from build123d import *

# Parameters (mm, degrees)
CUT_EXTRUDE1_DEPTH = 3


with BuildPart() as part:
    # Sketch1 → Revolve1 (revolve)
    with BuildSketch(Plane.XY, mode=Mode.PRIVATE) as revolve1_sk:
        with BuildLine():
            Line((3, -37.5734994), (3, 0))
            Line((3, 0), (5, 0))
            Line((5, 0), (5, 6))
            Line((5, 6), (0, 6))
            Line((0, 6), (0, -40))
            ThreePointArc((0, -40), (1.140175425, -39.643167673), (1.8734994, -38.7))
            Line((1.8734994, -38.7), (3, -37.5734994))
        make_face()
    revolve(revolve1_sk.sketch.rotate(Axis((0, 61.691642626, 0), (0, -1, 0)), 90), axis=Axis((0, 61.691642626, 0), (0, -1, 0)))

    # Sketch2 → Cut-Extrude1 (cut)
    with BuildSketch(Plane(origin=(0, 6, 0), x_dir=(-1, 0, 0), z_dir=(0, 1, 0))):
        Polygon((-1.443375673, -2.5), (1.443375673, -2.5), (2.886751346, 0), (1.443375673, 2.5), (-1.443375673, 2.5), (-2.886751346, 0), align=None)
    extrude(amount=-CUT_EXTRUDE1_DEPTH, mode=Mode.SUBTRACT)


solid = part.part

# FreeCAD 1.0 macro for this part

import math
import FreeCAD as App
import Part
import Sketcher

V = App.Vector
Q = App.Units.Quantity


def add_polygon(sketch, points):
    """Adds a closed chain of lines whose ends are joined by coincident constraints."""
    first, n = sketch.GeometryCount, len(points)
    for a, b in zip(points, points[1:] + points[:1]):
        sketch.addGeometry(Part.LineSegment(App.Vector(*a, 0), App.Vector(*b, 0)), False)
    for i in range(n):
        sketch.addConstraint(Sketcher.Constraint("Coincident", first + i, 2, first + (i + 1) % n, 1))

doc = App.newDocument("Part")
body = doc.addObject("PartDesign::Body", "Body")

# Sketch on XY plane
sketch1 = body.newObject("Sketcher::SketchObject", "Sketch")
sketch1.AttachmentSupport = (doc.getObject("XY_Plane"), [""])
sketch1.MapMode = "FlatFace"
sketch1.addGeometry(Part.LineSegment(V(3, -37.6, 0), V(3, 0, 0)), False)
sketch1.addGeometry(Part.LineSegment(V(3, 0, 0), V(5, 0, 0)), False)
sketch1.addGeometry(Part.LineSegment(V(5, 0, 0), V(5, 6, 0)), False)
sketch1.addGeometry(Part.LineSegment(V(5, 6, 0), V(0, 6, 0)), False)
sketch1.addGeometry(Part.LineSegment(V(0, 6, 0), V(0, -40, 0)), False)
sketch1.addGeometry(Part.ArcOfCircle(Part.Circle(V(0, -38, 0), V(0, 0, 1), 2), math.radians(-90), math.radians(-20)), False)
sketch1.addGeometry(Part.LineSegment(V(1.9, -38.7, 0), V(3, -37.6, 0)), False)
sketch1.addConstraint(Sketcher.Constraint("Coincident", 0, 2, 1, 1))
sketch1.addConstraint(Sketcher.Constraint("Coincident", 1, 2, 2, 1))
sketch1.addConstraint(Sketcher.Constraint("Coincident", 2, 2, 3, 1))
sketch1.addConstraint(Sketcher.Constraint("Coincident", 3, 2, 4, 1))
sketch1.addConstraint(Sketcher.Constraint("Coincident", 4, 2, 5, 1))
sketch1.addConstraint(Sketcher.Constraint("Coincident", 5, 2, 6, 1))
sketch1.addConstraint(Sketcher.Constraint("Coincident", 6, 2, 0, 1))
sketch1.addConstraint(Sketcher.Constraint("Vertical", 0))
sketch1.addConstraint(Sketcher.Constraint("Horizontal", 1))
sketch1.addConstraint(Sketcher.Constraint("Vertical", 2))
sketch1.addConstraint(Sketcher.Constraint("Horizontal", 3))
sketch1.addConstraint(Sketcher.Constraint("Vertical", 4))
sketch1.addConstraint(Sketcher.Constraint("PointOnObject", 5, 3, -2))
sketch1.addConstraint(Sketcher.Constraint("PointOnObject", 0, 2, -1))
sketch1.addConstraint(Sketcher.Constraint("PointOnObject", 3, 2, -2))
sketch1.addConstraint(Sketcher.Constraint("Radius", 5, 2.0))
sketch1.addConstraint(Sketcher.Constraint("DistanceX", 1, 1, 1, 2, 2.0))
sketch1.addConstraint(Sketcher.Constraint("DistanceX", 3, 2, 3, 1, 5.0))
sketch1.addConstraint(Sketcher.Constraint("DistanceY", 2, 1, 2, 2, 6.0))
sketch1.addConstraint(Sketcher.Constraint("DistanceY", 4, 2, 4, 1, 46.0))
sketch1.addConstraint(Sketcher.Constraint("Angle", 6, Q("45 deg")))
sketch1.addConstraint(Sketcher.Constraint("DistanceY", 5, 2, -1, 1, 38.7))
revolution = body.newObject("PartDesign::Revolution", "Revolution")
revolution.Profile = sketch1
revolution.ReferenceAxis = (sketch1, ["V_Axis"])
revolution.Angle = 360

# Sketch on XZ plane
sketch2 = body.newObject("Sketcher::SketchObject", "Sketch001")
sketch2.AttachmentSupport = (doc.getObject("XZ_Plane"), [""])
sketch2.MapMode = "FlatFace"
sketch2.AttachmentOffset = App.Placement(V(0, 0, -6), App.Rotation())
add_polygon(sketch2, [(1.4, -2.5), (-1.4, -2.5), (-2.9, 0), (-1.4, 2.5), (1.4, 2.5), (2.9, 0)])  # lines 0-5
sketch2.addConstraint(Sketcher.Constraint("Horizontal", 0))
sketch2.addConstraint(Sketcher.Constraint("Horizontal", 3))
sketch2.addConstraint(Sketcher.Constraint("Symmetric", 0, 2, 3, 2, -1, 1))
sketch2.addConstraint(Sketcher.Constraint("Symmetric", 1, 2, 4, 2, -1, 1))
sketch2.addConstraint(Sketcher.Constraint("PointOnObject", 1, 2, -1))
sketch2.addConstraint(Sketcher.Constraint("Parallel", 2, 5))
sketch2.addConstraint(Sketcher.Constraint("Vertical", 0, 2, 2, 2))
sketch2.addConstraint(Sketcher.Constraint("Angle", 1, Q("120 deg")))
sketch2.addConstraint(Sketcher.Constraint("DistanceY", 0, 2, 2, 2, 5.0))
sketch2.addConstraint(Sketcher.Constraint("DistanceX", 0, 2, 0, 1, 2.886751))
pocket1 = body.newObject("PartDesign::Pocket", "Pocket")
pocket1.Profile = sketch2
pocket1.Length = 3
pocket1.Reversed = True

doc.recompute()
